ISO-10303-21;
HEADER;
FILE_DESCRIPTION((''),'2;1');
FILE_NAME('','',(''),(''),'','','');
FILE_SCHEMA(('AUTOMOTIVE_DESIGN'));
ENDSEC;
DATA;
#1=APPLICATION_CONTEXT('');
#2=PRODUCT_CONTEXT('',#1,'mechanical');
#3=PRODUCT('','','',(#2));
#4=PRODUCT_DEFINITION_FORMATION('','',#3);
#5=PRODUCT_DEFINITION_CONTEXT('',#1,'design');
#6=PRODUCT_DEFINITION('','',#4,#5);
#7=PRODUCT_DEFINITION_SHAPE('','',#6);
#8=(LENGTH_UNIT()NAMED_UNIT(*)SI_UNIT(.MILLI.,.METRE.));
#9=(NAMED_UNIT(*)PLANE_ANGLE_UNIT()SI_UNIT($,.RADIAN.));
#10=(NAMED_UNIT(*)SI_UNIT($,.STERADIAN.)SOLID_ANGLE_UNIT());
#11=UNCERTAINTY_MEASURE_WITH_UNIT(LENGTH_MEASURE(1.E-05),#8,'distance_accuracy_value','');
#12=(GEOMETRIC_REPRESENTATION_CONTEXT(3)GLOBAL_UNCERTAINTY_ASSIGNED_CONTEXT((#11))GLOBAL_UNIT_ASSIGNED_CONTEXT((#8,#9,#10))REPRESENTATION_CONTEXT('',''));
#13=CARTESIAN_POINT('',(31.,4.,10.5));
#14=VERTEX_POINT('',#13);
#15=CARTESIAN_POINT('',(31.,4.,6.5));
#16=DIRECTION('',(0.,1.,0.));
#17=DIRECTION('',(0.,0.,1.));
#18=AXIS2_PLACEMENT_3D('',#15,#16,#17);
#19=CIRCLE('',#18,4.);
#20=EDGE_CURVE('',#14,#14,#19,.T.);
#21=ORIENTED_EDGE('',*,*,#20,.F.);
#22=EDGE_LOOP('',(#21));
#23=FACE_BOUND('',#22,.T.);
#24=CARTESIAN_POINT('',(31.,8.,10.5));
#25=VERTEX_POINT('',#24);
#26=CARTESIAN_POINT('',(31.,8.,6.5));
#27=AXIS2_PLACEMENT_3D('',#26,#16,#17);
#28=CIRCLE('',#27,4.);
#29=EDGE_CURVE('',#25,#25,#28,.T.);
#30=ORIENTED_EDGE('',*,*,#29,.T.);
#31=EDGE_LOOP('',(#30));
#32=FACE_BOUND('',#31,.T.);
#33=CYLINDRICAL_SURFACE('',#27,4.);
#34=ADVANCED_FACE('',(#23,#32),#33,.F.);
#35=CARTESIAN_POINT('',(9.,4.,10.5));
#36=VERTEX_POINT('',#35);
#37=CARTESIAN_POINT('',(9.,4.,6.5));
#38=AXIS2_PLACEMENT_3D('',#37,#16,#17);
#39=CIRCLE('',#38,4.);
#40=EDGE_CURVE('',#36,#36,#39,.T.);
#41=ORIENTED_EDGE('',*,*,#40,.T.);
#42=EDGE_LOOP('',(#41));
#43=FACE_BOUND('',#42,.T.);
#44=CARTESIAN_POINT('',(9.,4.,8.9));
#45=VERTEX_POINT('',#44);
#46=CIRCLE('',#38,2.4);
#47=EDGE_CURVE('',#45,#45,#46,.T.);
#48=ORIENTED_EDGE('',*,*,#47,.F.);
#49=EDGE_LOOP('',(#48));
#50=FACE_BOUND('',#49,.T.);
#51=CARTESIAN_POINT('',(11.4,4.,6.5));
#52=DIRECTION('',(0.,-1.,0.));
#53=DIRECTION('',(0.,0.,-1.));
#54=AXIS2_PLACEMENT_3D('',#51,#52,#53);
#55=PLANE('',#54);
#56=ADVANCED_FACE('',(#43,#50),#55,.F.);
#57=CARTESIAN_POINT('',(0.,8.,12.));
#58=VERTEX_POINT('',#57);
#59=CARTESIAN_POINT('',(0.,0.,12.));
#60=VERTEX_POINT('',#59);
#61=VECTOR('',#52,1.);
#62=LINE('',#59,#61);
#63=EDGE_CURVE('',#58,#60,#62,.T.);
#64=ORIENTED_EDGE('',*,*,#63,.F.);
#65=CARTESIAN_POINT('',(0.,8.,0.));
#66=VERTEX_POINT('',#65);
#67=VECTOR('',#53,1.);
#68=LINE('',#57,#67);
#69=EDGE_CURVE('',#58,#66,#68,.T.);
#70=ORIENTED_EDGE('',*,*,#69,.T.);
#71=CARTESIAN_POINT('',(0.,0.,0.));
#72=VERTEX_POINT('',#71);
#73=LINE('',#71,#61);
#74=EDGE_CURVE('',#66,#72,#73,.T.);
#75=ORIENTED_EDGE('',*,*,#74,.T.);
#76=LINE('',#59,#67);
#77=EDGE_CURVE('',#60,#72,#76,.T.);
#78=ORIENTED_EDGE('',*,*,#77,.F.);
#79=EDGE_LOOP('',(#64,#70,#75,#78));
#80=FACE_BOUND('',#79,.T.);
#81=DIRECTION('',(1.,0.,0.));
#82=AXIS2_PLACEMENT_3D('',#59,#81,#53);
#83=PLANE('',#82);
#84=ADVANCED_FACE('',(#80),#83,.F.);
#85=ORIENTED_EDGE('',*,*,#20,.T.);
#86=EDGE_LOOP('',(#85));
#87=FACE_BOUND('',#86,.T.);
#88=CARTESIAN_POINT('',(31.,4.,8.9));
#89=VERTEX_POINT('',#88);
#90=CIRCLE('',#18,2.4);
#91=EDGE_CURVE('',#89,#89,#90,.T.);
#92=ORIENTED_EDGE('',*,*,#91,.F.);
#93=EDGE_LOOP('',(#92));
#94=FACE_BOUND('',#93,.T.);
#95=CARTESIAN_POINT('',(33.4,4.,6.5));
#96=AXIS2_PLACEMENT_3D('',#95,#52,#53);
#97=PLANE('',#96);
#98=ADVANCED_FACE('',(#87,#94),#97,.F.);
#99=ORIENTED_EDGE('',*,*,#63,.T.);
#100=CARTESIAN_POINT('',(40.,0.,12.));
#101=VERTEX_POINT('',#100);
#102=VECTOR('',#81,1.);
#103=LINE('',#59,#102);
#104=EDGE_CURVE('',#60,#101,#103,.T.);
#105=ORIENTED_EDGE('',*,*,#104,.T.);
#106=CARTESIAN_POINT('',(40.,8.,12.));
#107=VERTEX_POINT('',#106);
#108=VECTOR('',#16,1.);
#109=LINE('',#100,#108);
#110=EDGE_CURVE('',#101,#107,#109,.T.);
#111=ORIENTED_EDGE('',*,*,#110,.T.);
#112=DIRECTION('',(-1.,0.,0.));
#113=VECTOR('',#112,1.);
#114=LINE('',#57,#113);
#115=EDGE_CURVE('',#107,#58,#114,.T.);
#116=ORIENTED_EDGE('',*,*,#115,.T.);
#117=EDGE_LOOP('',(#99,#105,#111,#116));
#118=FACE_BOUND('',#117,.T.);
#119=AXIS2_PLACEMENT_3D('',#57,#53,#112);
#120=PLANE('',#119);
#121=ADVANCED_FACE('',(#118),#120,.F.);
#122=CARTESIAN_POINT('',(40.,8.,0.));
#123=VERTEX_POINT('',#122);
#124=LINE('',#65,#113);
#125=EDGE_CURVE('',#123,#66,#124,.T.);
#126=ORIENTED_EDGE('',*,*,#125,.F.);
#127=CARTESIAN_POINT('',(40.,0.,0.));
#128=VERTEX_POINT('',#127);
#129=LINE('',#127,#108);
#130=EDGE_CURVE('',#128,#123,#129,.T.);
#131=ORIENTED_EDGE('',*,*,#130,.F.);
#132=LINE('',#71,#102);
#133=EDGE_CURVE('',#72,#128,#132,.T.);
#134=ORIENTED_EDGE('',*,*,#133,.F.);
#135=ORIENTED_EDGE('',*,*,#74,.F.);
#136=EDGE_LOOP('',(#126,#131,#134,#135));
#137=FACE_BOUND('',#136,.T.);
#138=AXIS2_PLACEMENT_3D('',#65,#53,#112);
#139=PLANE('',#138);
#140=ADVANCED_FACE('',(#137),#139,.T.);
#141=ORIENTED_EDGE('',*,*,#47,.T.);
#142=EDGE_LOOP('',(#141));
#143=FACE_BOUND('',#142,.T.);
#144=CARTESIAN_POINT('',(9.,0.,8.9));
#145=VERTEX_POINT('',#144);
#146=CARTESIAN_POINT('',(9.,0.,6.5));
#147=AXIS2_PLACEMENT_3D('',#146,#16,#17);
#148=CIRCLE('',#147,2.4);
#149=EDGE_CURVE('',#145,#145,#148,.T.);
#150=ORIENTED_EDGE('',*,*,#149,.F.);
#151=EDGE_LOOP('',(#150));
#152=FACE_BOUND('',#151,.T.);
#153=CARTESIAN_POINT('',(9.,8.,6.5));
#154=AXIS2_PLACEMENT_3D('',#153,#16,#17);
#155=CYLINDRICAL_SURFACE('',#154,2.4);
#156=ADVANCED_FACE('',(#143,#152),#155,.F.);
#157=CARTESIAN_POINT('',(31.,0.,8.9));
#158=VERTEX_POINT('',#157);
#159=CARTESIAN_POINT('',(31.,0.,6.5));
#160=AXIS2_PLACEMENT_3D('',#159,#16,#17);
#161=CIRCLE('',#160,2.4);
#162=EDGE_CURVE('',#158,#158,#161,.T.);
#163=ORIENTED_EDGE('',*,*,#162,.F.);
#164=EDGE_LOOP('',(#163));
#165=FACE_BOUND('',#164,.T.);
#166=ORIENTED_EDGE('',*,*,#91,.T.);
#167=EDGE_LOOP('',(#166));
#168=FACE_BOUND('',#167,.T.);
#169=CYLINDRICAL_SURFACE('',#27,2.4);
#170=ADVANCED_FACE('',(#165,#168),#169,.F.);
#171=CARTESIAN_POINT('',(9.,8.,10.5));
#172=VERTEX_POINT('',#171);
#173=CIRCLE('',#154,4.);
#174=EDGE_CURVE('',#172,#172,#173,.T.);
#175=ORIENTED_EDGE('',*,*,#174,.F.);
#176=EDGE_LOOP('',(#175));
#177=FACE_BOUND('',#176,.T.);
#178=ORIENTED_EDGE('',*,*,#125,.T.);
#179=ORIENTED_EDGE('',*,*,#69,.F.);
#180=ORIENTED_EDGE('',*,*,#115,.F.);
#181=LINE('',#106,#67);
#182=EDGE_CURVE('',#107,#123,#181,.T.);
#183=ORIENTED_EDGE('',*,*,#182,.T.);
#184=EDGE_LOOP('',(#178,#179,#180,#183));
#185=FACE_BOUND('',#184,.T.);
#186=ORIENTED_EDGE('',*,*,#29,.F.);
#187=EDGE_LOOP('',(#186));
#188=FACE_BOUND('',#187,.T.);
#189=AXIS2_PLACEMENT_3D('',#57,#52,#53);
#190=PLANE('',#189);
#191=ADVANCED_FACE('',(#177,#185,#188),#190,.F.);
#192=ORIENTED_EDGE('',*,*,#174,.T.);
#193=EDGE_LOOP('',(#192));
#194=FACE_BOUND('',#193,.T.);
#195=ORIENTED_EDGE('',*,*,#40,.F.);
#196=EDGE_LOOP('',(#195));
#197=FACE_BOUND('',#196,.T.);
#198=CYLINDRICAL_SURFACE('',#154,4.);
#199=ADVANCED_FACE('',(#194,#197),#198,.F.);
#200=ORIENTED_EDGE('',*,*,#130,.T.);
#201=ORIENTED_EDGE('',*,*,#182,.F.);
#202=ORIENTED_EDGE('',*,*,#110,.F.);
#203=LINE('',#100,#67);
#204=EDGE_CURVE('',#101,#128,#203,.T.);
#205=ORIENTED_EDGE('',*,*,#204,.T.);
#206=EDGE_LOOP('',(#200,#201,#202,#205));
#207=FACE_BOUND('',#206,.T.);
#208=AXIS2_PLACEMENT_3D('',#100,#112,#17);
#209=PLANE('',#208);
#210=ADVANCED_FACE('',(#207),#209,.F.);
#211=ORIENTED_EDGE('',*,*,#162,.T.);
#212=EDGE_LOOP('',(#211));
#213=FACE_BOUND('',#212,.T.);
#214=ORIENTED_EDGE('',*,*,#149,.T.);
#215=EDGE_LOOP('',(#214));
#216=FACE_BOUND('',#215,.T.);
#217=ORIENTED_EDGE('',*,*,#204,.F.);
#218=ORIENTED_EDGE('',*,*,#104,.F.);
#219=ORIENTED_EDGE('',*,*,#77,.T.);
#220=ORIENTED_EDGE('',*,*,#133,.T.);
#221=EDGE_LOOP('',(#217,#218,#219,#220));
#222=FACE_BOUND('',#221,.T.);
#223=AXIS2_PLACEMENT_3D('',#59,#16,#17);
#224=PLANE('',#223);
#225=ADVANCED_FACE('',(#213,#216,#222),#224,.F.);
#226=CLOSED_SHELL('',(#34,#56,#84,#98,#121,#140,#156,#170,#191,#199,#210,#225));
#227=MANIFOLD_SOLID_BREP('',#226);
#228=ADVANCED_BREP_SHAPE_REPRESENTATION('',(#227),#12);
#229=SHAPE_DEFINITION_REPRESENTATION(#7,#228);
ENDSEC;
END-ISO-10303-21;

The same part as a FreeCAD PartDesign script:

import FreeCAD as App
import Part
import Sketcher
Q = App.Units.Quantity

doc = App.newDocument("Part")
body = doc.addObject("PartDesign::Body", "Body")

sketch1 = body.newObject("Sketcher::SketchObject", "Sketch")
sketch1.AttachmentSupport = (doc.getObject("XY_Plane"), [""])
sketch1.MapMode = "FlatFace"
sketch1.addGeometry([
    Part.LineSegment(App.Vector(0, 8, 0), App.Vector(0, 0, 0)),
    Part.LineSegment(App.Vector(0, 0, 0), App.Vector(40, 0, 0)),
    Part.LineSegment(App.Vector(40, 0, 0), App.Vector(40, 8, 0)),
    Part.LineSegment(App.Vector(40, 8, 0), App.Vector(0, 8, 0)),
], False)
sketch1.addConstraint([
    Sketcher.Constraint("Coincident", 0, 2, 1, 1),
    Sketcher.Constraint("Coincident", 1, 2, 2, 1),
    Sketcher.Constraint("Coincident", 2, 2, 3, 1),
    Sketcher.Constraint("Coincident", 3, 2, 0, 1),
    Sketcher.Constraint("Vertical", 0),
    Sketcher.Constraint("Horizontal", 1),
    Sketcher.Constraint("Vertical", 2),
    Sketcher.Constraint("Horizontal", 3),
    Sketcher.Constraint("Coincident", 0, 2, -1, 1),
    Sketcher.Constraint("DistanceX", 1, 1, 1, 2, Q("40 mm")),
    Sketcher.Constraint("DistanceY", 0, 2, 0, 1, Q("8 mm")),
])
pad1 = body.newObject("PartDesign::Pad", "Pad")
pad1.Profile = sketch1
pad1.Length = 12

sketch2 = body.newObject("Sketcher::SketchObject", "Sketch001")
sketch2.AttachmentSupport = (doc.getObject("XZ_Plane"), [""])
sketch2.MapMode = "FlatFace"
sketch2.AttachmentOffset = App.Placement(App.Vector(0, 0, -8), App.Rotation())
sketch2.addGeometry([
    Part.Circle(App.Vector(9, 6.5, 0), App.Vector(0, 0, 1), 2.4),
    Part.Circle(App.Vector(31, 6.5, 0), App.Vector(0, 0, 1), 2.4),
], False)
sketch2.addConstraint([
    Sketcher.Constraint("Equal", 0, 1),
    Sketcher.Constraint("Horizontal", 0, 3, 1, 3),
    Sketcher.Constraint("Diameter", 0, Q("4.8 mm")),
    Sketcher.Constraint("DistanceX", -1, 1, 0, 3, Q("9 mm")),
    Sketcher.Constraint("DistanceX", -1, 1, 1, 3, Q("31 mm")),
    Sketcher.Constraint("DistanceY", -1, 1, 0, 3, Q("6.5 mm")),
])
doc.recompute()
hole = body.newObject("PartDesign::Hole", "Hole")
hole.Profile = sketch2
hole.ThreadType = "None"
hole.Diameter = 4.8
hole.DepthType = "ThroughAll"
hole.HoleCutType = "Counterbore"
hole.HoleCutDiameter = 8
hole.HoleCutDepth = 4
hole.Reversed = True

doc.recompute()
